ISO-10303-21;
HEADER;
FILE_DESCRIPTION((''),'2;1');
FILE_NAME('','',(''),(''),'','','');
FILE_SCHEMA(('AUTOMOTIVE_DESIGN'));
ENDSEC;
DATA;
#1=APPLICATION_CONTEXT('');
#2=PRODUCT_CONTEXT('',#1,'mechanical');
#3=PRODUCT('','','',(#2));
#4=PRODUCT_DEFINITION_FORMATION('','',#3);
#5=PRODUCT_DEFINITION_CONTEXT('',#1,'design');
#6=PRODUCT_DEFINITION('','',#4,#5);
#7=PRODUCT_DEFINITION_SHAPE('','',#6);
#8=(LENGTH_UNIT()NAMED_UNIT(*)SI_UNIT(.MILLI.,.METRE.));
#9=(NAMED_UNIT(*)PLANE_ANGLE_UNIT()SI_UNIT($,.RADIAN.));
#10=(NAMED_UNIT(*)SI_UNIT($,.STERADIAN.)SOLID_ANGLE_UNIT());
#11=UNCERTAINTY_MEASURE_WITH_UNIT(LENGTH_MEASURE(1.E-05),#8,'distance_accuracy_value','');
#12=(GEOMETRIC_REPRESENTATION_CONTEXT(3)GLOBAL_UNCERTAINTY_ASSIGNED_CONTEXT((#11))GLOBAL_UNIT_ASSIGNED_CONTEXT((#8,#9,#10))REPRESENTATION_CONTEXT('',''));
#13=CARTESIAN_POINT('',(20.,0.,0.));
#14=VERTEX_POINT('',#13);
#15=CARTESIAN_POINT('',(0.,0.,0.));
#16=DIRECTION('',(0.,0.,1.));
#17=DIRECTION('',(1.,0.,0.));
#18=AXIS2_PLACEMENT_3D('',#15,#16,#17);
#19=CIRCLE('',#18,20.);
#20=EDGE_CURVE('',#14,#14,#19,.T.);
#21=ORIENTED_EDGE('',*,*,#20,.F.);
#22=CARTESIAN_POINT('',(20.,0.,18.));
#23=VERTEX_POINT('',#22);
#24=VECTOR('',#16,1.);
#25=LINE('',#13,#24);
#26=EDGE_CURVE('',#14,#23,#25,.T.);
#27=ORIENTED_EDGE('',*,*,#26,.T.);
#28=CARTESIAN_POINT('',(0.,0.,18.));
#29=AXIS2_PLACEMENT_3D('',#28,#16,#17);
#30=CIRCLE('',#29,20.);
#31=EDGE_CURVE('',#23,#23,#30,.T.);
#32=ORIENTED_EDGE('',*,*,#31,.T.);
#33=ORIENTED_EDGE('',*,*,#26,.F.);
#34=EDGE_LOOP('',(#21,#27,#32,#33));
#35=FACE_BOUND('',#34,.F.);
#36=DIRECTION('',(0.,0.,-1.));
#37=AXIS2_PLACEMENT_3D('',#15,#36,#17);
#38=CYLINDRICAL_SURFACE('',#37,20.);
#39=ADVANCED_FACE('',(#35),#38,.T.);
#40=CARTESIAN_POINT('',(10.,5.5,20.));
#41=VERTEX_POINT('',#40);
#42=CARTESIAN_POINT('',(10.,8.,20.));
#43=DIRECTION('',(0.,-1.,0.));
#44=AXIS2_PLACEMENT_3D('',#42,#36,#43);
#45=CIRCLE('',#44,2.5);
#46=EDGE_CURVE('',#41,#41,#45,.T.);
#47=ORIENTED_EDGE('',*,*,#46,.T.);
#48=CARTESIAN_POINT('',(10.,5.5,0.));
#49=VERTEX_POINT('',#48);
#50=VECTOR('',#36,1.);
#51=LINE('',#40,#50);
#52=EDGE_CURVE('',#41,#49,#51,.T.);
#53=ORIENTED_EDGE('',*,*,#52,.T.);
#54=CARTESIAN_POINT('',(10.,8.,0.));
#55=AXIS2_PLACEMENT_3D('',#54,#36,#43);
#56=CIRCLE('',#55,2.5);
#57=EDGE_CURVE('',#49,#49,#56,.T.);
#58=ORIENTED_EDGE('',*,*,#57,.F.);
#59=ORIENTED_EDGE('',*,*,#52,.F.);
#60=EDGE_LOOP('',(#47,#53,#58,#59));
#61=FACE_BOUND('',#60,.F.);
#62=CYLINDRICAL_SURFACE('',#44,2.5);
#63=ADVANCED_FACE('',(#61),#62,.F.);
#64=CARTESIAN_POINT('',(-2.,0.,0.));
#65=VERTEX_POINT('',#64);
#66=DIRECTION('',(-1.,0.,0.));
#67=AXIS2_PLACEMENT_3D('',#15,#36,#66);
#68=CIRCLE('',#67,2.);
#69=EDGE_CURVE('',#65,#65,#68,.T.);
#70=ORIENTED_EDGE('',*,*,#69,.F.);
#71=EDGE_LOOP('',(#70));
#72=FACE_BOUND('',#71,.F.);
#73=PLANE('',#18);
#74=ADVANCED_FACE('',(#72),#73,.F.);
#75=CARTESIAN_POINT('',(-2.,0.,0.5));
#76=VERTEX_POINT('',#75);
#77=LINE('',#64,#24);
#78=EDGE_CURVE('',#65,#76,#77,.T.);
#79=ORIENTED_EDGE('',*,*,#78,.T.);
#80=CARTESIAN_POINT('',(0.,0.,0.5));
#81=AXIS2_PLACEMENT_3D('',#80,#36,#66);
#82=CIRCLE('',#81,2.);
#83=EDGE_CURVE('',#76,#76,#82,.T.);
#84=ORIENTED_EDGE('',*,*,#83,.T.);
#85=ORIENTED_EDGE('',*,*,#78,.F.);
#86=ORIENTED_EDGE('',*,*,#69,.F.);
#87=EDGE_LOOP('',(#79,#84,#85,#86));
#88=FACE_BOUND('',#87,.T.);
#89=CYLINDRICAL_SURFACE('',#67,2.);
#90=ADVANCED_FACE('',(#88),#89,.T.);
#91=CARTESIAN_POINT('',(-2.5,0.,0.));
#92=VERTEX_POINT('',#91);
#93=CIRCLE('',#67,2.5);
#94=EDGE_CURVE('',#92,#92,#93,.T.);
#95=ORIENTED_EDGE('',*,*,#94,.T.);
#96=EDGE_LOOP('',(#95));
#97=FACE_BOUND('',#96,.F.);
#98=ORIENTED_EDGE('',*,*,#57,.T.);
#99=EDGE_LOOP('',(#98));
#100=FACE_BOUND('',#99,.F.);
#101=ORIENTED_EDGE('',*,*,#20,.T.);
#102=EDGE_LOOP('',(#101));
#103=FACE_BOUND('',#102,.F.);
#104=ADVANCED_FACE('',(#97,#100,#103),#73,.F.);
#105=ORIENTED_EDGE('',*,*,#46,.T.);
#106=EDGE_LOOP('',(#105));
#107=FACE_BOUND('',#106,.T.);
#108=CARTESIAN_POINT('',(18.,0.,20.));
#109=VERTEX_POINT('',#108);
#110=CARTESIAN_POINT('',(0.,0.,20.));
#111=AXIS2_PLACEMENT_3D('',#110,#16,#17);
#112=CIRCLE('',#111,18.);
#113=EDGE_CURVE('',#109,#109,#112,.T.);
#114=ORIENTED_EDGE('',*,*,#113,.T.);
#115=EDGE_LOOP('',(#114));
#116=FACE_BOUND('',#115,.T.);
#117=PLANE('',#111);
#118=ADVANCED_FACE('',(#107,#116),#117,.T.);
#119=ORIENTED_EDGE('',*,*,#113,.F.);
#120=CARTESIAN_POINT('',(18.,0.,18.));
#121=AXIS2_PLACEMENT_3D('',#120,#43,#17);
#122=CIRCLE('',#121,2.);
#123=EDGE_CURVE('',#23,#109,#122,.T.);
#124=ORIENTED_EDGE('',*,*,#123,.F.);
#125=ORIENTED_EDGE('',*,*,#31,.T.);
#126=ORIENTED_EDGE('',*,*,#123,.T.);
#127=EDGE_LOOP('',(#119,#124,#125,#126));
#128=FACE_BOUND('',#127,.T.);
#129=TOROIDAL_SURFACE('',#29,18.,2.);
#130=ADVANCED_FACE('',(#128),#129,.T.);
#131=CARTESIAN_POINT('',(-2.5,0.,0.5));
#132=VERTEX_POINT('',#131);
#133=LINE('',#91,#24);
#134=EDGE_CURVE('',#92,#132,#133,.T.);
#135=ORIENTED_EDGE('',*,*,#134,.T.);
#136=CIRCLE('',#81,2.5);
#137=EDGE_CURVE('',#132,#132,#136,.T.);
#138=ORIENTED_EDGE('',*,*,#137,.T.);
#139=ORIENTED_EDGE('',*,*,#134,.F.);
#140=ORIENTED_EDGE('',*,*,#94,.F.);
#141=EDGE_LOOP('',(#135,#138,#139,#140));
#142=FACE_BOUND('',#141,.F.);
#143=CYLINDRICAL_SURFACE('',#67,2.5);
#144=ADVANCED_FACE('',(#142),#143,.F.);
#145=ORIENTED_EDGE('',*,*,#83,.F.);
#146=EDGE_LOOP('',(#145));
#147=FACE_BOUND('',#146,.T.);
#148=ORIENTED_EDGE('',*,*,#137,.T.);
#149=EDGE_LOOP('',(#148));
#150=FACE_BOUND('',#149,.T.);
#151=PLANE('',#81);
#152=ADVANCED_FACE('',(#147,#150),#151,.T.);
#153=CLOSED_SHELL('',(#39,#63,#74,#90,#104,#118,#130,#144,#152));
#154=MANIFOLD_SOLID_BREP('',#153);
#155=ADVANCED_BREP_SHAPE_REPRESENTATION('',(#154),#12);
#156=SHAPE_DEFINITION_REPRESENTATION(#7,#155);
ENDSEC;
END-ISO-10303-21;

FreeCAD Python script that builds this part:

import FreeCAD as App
import Part
import Sketcher
from FreeCAD import Vector


def edges_at(feature, points):
    """Names of the edges that pass closest to the given points."""
    edges = feature.Shape.Edges
    near = lambda p: min(range(len(edges)), key=lambda i: edges[i].distToShape(Part.Vertex(*p))[0])
    return sorted({f"Edge{near(p) + 1}" for p in points})

doc = App.newDocument("Part")
params = doc.addObject("Spreadsheet::Sheet", "Params")
for row, (alias, value) in enumerate([
    ("sketch1_diameter", "40 mm"),
    ("pad1_length", "20 mm"),
    ("fillet_radius", "2 mm"),
    ("sketch2_diameter", "5 mm"),
    ("hole_diameter", "5 mm"),
    ("sketch3_diameter", "5 mm"),
    ("sketch3_diameter2", "4 mm"),
    ("pocket1_length", "0.5 mm"),
], start=1):
    params.set(f"A{row}", alias)
    params.set(f"B{row}", "=" + value)
    params.setAlias(f"B{row}", alias)

body = doc.addObject("PartDesign::Body", "Body")

sketch1 = body.newObject("Sketcher::SketchObject", "Sketch")
sketch1.AttachmentSupport = (doc.getObject("XY_Plane"), [""])
sketch1.MapMode = "FlatFace"
sketch1.addGeometry(Part.Circle(Vector(0, 0, 0), Vector(0, 0, 1), 20), False)
sketch1.addConstraint(Sketcher.Constraint("Coincident", 0, 3, -1, 1))
sketch1.addConstraint(Sketcher.Constraint("Diameter", 0, 40.0))
sketch1.setExpression("Constraints[1]", "Params.sketch1_diameter")
pad1 = body.newObject("PartDesign::Pad", "Pad")
pad1.Profile = sketch1
pad1.setExpression("Length", "Params.pad1_length")
doc.recompute()

fillet = body.newObject("PartDesign::Fillet", "Fillet")
fillet.Base = (pad1, edges_at(pad1, [(-20, 0, 20)]))
fillet.setExpression("Radius", "Params.fillet_radius")

sketch2 = body.newObject("Sketcher::SketchObject", "Sketch001")
sketch2.AttachmentSupport = (doc.getObject("XY_Plane"), [""])
sketch2.MapMode = "FlatFace"
sketch2.AttachmentOffset = App.Placement(Vector(0, 0, 20), App.Rotation())
sketch2.addGeometry(Part.Circle(Vector(10, 8, 0), Vector(0, 0, 1), 2.5), False)
sketch2.addConstraint(Sketcher.Constraint("Diameter", 0, 5.0))
sketch2.addConstraint(Sketcher.Constraint("DistanceX", -1, 1, 0, 3, 10.0))
sketch2.addConstraint(Sketcher.Constraint("DistanceY", -1, 1, 0, 3, 8.0))
sketch2.setExpression("Constraints[0]", "Params.sketch2_diameter")
doc.recompute()
hole = body.newObject("PartDesign::Hole", "Hole")
hole.Profile = sketch2
hole.ThreadType = "None"
hole.setExpression("Diameter", "Params.hole_diameter")
hole.DepthType = "ThroughAll"

sketch3 = body.newObject("Sketcher::SketchObject", "Sketch002")
sketch3.AttachmentSupport = (doc.getObject("XY_Plane"), [""])
sketch3.MapMode = "FlatFace"
sketch3.addGeometry(Part.Circle(Vector(0, 0, 0), Vector(0, 0, 1), 2.5), False)
sketch3.addGeometry(Part.Circle(Vector(0, 0, 0), Vector(0, 0, 1), 2), False)
sketch3.addConstraint(Sketcher.Constraint("Coincident", 0, 3, -1, 1))
sketch3.addConstraint(Sketcher.Constraint("Coincident", 1, 3, -1, 1))
sketch3.addConstraint(Sketcher.Constraint("Diameter", 0, 5.0))
sketch3.addConstraint(Sketcher.Constraint("Diameter", 1, 4.0))
sketch3.setExpression("Constraints[2]", "Params.sketch3_diameter")
sketch3.setExpression("Constraints[3]", "Params.sketch3_diameter2")
pocket1 = body.newObject("PartDesign::Pocket", "Pocket")
pocket1.Profile = sketch3
pocket1.setExpression("Length", "Params.pocket1_length")
pocket1.Reversed = True

doc.recompute()
